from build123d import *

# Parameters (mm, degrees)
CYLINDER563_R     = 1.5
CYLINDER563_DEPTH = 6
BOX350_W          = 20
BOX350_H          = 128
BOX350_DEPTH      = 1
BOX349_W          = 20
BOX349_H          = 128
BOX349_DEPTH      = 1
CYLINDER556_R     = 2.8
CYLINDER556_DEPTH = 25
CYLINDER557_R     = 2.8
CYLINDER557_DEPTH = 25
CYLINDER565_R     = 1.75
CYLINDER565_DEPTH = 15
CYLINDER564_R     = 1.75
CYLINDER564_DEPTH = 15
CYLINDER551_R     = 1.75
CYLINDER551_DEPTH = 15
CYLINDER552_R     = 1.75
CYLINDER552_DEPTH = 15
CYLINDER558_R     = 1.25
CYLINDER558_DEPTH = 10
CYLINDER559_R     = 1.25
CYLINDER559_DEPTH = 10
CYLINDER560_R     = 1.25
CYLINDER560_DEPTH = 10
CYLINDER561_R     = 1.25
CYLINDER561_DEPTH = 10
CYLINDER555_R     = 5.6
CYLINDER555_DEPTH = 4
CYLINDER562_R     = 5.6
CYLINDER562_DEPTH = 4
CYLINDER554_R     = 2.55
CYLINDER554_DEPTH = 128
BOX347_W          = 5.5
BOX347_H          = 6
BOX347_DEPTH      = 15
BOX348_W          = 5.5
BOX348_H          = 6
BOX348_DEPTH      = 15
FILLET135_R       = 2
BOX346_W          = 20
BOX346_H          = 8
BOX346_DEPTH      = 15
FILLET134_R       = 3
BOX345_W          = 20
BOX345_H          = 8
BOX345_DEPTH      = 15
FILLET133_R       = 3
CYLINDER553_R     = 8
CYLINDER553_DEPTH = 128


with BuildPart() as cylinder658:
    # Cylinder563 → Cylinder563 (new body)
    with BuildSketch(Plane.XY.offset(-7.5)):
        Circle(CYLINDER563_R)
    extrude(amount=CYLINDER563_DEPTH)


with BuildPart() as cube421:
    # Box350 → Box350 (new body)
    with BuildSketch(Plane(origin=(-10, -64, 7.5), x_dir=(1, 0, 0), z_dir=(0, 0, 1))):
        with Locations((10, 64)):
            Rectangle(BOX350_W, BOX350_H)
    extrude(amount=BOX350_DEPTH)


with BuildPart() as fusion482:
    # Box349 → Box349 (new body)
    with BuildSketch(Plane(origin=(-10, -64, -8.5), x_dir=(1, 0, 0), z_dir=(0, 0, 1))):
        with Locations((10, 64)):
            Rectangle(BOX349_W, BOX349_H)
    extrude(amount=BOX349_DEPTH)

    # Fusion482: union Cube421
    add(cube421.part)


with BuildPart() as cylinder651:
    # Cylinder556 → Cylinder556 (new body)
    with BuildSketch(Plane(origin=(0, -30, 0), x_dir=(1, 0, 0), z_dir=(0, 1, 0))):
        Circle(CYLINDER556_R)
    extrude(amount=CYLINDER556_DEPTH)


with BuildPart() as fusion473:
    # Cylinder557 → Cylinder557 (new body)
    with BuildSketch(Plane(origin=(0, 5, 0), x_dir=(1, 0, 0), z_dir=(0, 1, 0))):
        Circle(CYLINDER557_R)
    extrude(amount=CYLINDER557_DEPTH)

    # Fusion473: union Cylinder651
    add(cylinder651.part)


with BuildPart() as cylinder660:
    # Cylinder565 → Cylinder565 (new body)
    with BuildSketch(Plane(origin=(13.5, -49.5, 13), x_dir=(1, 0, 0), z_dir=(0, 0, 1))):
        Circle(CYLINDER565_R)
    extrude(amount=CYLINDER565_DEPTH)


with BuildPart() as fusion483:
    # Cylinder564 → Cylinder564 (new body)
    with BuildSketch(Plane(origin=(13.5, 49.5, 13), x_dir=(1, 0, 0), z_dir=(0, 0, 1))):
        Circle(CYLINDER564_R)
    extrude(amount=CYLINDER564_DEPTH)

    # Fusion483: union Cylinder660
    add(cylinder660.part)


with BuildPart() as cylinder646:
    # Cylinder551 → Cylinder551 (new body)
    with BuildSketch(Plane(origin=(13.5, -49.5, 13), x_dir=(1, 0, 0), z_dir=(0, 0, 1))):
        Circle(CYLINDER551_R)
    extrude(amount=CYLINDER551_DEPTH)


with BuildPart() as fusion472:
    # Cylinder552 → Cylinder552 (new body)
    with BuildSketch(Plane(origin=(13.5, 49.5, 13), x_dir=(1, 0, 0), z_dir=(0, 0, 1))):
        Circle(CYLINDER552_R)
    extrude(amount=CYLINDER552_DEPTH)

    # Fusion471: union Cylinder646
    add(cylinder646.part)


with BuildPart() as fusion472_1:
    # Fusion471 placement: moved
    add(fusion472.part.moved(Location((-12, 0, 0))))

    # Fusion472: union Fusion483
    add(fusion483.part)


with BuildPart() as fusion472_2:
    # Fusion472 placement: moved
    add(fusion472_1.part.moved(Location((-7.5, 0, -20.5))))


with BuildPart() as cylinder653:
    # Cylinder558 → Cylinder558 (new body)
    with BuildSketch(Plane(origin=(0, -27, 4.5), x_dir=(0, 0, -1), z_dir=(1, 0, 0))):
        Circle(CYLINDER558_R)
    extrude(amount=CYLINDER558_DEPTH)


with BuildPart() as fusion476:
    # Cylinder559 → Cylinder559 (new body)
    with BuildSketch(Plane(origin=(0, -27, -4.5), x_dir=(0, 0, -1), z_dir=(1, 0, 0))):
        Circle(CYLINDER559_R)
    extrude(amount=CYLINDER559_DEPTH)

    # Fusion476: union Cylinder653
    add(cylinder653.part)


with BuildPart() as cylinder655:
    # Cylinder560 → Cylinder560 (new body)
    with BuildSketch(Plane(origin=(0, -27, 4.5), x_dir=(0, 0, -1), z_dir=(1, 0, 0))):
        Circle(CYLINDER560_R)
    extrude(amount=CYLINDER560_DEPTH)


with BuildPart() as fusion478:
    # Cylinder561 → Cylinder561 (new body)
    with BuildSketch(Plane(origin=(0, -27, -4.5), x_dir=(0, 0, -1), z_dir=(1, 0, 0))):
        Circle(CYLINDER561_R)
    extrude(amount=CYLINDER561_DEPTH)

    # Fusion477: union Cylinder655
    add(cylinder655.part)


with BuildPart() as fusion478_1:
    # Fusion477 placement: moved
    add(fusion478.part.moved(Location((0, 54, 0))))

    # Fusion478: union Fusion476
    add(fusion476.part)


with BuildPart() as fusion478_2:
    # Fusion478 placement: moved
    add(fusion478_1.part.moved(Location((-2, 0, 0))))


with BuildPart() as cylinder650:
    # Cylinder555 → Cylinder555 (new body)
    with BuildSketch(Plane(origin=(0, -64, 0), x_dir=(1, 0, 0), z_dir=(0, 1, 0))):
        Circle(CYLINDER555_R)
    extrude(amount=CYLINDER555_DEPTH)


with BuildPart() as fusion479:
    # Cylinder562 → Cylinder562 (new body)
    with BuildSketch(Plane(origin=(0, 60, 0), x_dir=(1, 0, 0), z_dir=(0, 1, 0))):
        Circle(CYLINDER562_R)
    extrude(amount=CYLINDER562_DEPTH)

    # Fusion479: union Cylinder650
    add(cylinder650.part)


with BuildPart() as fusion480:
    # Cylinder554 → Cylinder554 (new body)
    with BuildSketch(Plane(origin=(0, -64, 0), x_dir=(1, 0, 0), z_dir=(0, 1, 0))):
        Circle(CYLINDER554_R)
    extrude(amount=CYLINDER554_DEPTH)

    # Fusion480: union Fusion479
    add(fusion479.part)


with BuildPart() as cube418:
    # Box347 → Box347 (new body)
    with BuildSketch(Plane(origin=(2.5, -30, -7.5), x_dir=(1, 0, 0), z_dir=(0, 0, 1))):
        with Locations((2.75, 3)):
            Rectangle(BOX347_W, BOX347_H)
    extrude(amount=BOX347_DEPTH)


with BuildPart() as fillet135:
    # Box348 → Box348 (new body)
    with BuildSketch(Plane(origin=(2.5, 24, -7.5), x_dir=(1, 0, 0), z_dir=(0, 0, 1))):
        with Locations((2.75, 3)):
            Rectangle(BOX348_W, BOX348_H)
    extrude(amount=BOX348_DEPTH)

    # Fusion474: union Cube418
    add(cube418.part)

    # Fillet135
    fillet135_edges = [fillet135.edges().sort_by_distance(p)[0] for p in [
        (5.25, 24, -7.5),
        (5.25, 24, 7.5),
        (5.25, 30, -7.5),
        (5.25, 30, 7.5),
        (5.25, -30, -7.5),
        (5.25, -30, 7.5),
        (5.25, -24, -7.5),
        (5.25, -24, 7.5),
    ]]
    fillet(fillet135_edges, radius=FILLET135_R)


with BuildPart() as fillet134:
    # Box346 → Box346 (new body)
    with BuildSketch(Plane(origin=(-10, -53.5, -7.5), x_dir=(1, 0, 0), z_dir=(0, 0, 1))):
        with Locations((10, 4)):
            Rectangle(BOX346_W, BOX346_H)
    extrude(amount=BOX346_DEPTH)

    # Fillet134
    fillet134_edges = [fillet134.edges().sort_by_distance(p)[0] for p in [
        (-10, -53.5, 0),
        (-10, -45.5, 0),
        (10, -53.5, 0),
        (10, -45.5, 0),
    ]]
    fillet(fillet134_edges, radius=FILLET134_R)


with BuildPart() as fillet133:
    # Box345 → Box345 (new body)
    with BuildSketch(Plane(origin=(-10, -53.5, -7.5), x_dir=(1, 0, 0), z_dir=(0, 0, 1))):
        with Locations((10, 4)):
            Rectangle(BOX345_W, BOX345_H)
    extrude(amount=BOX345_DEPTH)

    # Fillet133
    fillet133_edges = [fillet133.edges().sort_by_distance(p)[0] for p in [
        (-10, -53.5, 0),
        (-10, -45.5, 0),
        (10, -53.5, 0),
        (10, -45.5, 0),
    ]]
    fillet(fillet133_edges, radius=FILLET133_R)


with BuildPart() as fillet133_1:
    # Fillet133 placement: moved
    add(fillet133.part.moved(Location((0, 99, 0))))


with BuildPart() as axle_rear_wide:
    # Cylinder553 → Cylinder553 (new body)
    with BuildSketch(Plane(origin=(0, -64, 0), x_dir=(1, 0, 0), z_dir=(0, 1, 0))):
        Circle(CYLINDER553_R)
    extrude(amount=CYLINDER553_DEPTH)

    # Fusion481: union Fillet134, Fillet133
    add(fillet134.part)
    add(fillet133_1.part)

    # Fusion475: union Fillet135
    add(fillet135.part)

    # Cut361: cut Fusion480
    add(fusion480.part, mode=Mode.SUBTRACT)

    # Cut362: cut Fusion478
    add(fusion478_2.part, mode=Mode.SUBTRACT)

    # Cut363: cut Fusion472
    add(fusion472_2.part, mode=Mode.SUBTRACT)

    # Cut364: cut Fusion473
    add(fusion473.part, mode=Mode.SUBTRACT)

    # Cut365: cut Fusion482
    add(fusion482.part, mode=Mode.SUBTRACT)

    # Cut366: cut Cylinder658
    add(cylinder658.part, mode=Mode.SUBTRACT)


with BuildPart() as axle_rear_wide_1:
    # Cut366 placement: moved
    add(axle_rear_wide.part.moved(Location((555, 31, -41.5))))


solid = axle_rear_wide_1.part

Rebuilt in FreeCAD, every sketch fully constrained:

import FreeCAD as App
import Part
import Sketcher

V = App.Vector


def edges_at(feature, points):
    """Names of the edges that pass closest to the given points."""
    edges = feature.Shape.Edges
    near = lambda p: min(range(len(edges)), key=lambda i: edges[i].distToShape(Part.Vertex(*p))[0])
    return sorted({f"Edge{near(p) + 1}" for p in points})

doc = App.newDocument("Part")
params = doc.addObject("Spreadsheet::Sheet", "Params")
for row, (alias, value) in enumerate([
    ("sketch1_diameter", "3 mm"),
    ("pad1_length", "6 mm"),
    ("sketch2_width", "20 mm"),
    ("sketch2_height", "128 mm"),
    ("pad2_length", "1 mm"),
    ("sketch3_width", "20 mm"),
    ("sketch3_height", "128 mm"),
    ("pad3_length", "1 mm"),
    ("sketch4_diameter", "5.6 mm"),
    ("pad4_length", "25 mm"),
    ("sketch5_diameter", "5.6 mm"),
    ("pad5_length", "25 mm"),
    ("sketch6_diameter", "3.5 mm"),
    ("pad6_length", "15 mm"),
    ("sketch7_diameter", "3.5 mm"),
    ("pad7_length", "15 mm"),
    ("sketch8_diameter", "3.5 mm"),
    ("pad8_length", "15 mm"),
    ("sketch9_diameter", "3.5 mm"),
    ("pad9_length", "15 mm"),
    ("sketch10_diameter", "2.5 mm"),
    ("pad10_length", "10 mm"),
    ("sketch11_diameter", "2.5 mm"),
    ("pad11_length", "10 mm"),
    ("sketch12_diameter", "2.5 mm"),
    ("pad12_length", "10 mm"),
    ("sketch13_diameter", "2.5 mm"),
    ("pad13_length", "10 mm"),
    ("sketch14_diameter", "11.2 mm"),
    ("pad14_length", "4 mm"),
    ("sketch15_diameter", "11.2 mm"),
    ("pad15_length", "4 mm"),
    ("sketch16_diameter", "5.1 mm"),
    ("pad16_length", "128 mm"),
    ("sketch17_height", "6 mm"),
    ("sketch17_width", "5.5 mm"),
    ("pad17_length", "15 mm"),
    ("sketch18_height", "6 mm"),
    ("sketch18_width", "5.5 mm"),
    ("pad18_length", "15 mm"),
    ("fillet_radius", "2 mm"),
    ("sketch19_width", "20 mm"),
    ("sketch19_height", "8 mm"),
    ("pad19_length", "15 mm"),
    ("fillet2_radius", "3 mm"),
    ("sketch20_width", "20 mm"),
    ("sketch20_height", "8 mm"),
    ("pad20_length", "15 mm"),
    ("fillet3_radius", "3 mm"),
    ("sketch21_diameter", "16 mm"),
    ("pad21_length", "128 mm"),
], start=1):
    params.set(f"A{row}", alias)
    params.set(f"B{row}", "=" + value)
    params.setAlias(f"B{row}", alias)

body = doc.addObject("PartDesign::Body", "Body")

# Sketch on XY plane
sketch1 = body.newObject("Sketcher::SketchObject", "Sketch")
sketch1.AttachmentSupport = (doc.getObject("XY_Plane"), [""])
sketch1.MapMode = "FlatFace"
sketch1.AttachmentOffset = App.Placement(V(0, 0, -7.5), App.Rotation())
sketch1.addGeometry(Part.Circle(V(0, 0, 0), V(0, 0, 1), 1.5), False)
sketch1.addConstraint(Sketcher.Constraint("Coincident", 0, 3, -1, 1))
sketch1.addConstraint(Sketcher.Constraint("Diameter", 0, 3.0))
sketch1.setExpression("Constraints[1]", "Params.sketch1_diameter")
pad1 = body.newObject("PartDesign::Pad", "Pad")
pad1.Profile = sketch1
pad1.setExpression("Length", "Params.pad1_length")
body2 = doc.addObject("PartDesign::Body", "Body001")

# Sketch on XY plane
sketch2 = body2.newObject("Sketcher::SketchObject", "Sketch001")
sketch2.AttachmentSupport = (doc.getObject("XY_Plane001"), [""])
sketch2.MapMode = "FlatFace"
sketch2.AttachmentOffset = App.Placement(V(0, 0, 7.5), App.Rotation())
sketch2.addGeometry(Part.LineSegment(V(-10, 64, 0), V(-10, -64, 0)), False)
sketch2.addGeometry(Part.LineSegment(V(-10, -64, 0), V(10, -64, 0)), False)
sketch2.addGeometry(Part.LineSegment(V(10, -64, 0), V(10, 64, 0)), False)
sketch2.addGeometry(Part.LineSegment(V(10, 64, 0), V(-10, 64, 0)), False)
sketch2.addConstraint(Sketcher.Constraint("Coincident", 0, 2, 1, 1))
sketch2.addConstraint(Sketcher.Constraint("Coincident", 1, 2, 2, 1))
sketch2.addConstraint(Sketcher.Constraint("Coincident", 2, 2, 3, 1))
sketch2.addConstraint(Sketcher.Constraint("Coincident", 3, 2, 0, 1))
sketch2.addConstraint(Sketcher.Constraint("Vertical", 0))
sketch2.addConstraint(Sketcher.Constraint("Horizontal", 1))
sketch2.addConstraint(Sketcher.Constraint("Vertical", 2))
sketch2.addConstraint(Sketcher.Constraint("Horizontal", 3))
sketch2.addConstraint(Sketcher.Constraint("Symmetric", 0, 2, 2, 2, -1, 1))
sketch2.addConstraint(Sketcher.Constraint("DistanceX", 1, 1, 1, 2, 20.0))
sketch2.addConstraint(Sketcher.Constraint("DistanceY", 0, 2, 0, 1, 128.0))
sketch2.setExpression("Constraints[9]", "Params.sketch2_width")
sketch2.setExpression("Constraints[10]", "Params.sketch2_height")
pad2 = body2.newObject("PartDesign::Pad", "Pad001")
pad2.Profile = sketch2
pad2.setExpression("Length", "Params.pad2_length")
body3 = doc.addObject("PartDesign::Body", "Body002")
body3.AllowCompound = True

# Sketch on XY plane
sketch3 = body3.newObject("Sketcher::SketchObject", "Sketch002")
sketch3.AttachmentSupport = (doc.getObject("XY_Plane002"), [""])
sketch3.MapMode = "FlatFace"
sketch3.AttachmentOffset = App.Placement(V(0, 0, -8.5), App.Rotation())
sketch3.addGeometry(Part.LineSegment(V(-10, 64, 0), V(-10, -64, 0)), False)
sketch3.addGeometry(Part.LineSegment(V(-10, -64, 0), V(10, -64, 0)), False)
sketch3.addGeometry(Part.LineSegment(V(10, -64, 0), V(10, 64, 0)), False)
sketch3.addGeometry(Part.LineSegment(V(10, 64, 0), V(-10, 64, 0)), False)
sketch3.addConstraint(Sketcher.Constraint("Coincident", 0, 2, 1, 1))
sketch3.addConstraint(Sketcher.Constraint("Coincident", 1, 2, 2, 1))
sketch3.addConstraint(Sketcher.Constraint("Coincident", 2, 2, 3, 1))
sketch3.addConstraint(Sketcher.Constraint("Coincident", 3, 2, 0, 1))
sketch3.addConstraint(Sketcher.Constraint("Vertical", 0))
sketch3.addConstraint(Sketcher.Constraint("Horizontal", 1))
sketch3.addConstraint(Sketcher.Constraint("Vertical", 2))
sketch3.addConstraint(Sketcher.Constraint("Horizontal", 3))
sketch3.addConstraint(Sketcher.Constraint("Symmetric", 0, 2, 2, 2, -1, 1))
sketch3.addConstraint(Sketcher.Constraint("DistanceX", 1, 1, 1, 2, 20.0))
sketch3.addConstraint(Sketcher.Constraint("DistanceY", 0, 2, 0, 1, 128.0))
sketch3.setExpression("Constraints[9]", "Params.sketch3_width")
sketch3.setExpression("Constraints[10]", "Params.sketch3_height")
pad3 = body3.newObject("PartDesign::Pad", "Pad002")
pad3.Profile = sketch3
pad3.setExpression("Length", "Params.pad3_length")
doc.recompute()

boolean = body3.newObject("PartDesign::Boolean", "Boolean")
boolean.Type = "Fuse"
boolean.addObjects([body2])
body4 = doc.addObject("PartDesign::Body", "Body003")

# Sketch on XZ plane
sketch4 = body4.newObject("Sketcher::SketchObject", "Sketch003")
sketch4.AttachmentSupport = (doc.getObject("XZ_Plane003"), [""])
sketch4.MapMode = "FlatFace"
sketch4.AttachmentOffset = App.Placement(V(0, 0, 30), App.Rotation())
sketch4.addGeometry(Part.Circle(V(0, 0, 0), V(0, 0, 1), 2.8), False)
sketch4.addConstraint(Sketcher.Constraint("Coincident", 0, 3, -1, 1))
sketch4.addConstraint(Sketcher.Constraint("Diameter", 0, 5.6))
sketch4.setExpression("Constraints[1]", "Params.sketch4_diameter")
pad4 = body4.newObject("PartDesign::Pad", "Pad003")
pad4.Profile = sketch4
pad4.setExpression("Length", "Params.pad4_length")
pad4.Reversed = True
body5 = doc.addObject("PartDesign::Body", "Body004")
body5.AllowCompound = True

# Sketch on XZ plane
sketch5 = body5.newObject("Sketcher::SketchObject", "Sketch004")
sketch5.AttachmentSupport = (doc.getObject("XZ_Plane004"), [""])
sketch5.MapMode = "FlatFace"
sketch5.AttachmentOffset = App.Placement(V(0, 0, -5), App.Rotation())
sketch5.addGeometry(Part.Circle(V(0, 0, 0), V(0, 0, 1), 2.8), False)
sketch5.addConstraint(Sketcher.Constraint("Coincident", 0, 3, -1, 1))
sketch5.addConstraint(Sketcher.Constraint("Diameter", 0, 5.6))
sketch5.setExpression("Constraints[1]", "Params.sketch5_diameter")
pad5 = body5.newObject("PartDesign::Pad", "Pad004")
pad5.Profile = sketch5
pad5.setExpression("Length", "Params.pad5_length")
pad5.Reversed = True
doc.recompute()

boolean2 = body5.newObject("PartDesign::Boolean", "Boolean001")
boolean2.Type = "Fuse"
boolean2.addObjects([body4])
body6 = doc.addObject("PartDesign::Body", "Body005")

# Sketch on XY plane
sketch6 = body6.newObject("Sketcher::SketchObject", "Sketch005")
sketch6.AttachmentSupport = (doc.getObject("XY_Plane005"), [""])
sketch6.MapMode = "FlatFace"
sketch6.AttachmentOffset = App.Placement(V(0, 0, 13), App.Rotation())
sketch6.addGeometry(Part.Circle(V(13.5, -49.5, 0), V(0, 0, 1), 1.75), False)
sketch6.addConstraint(Sketcher.Constraint("Diameter", 0, 3.5))
sketch6.addConstraint(Sketcher.Constraint("DistanceX", -1, 1, 0, 3, 13.5))
sketch6.addConstraint(Sketcher.Constraint("DistanceY", 0, 3, -1, 1, 49.5))
sketch6.setExpression("Constraints[0]", "Params.sketch6_diameter")
pad6 = body6.newObject("PartDesign::Pad", "Pad005")
pad6.Profile = sketch6
pad6.setExpression("Length", "Params.pad6_length")
body7 = doc.addObject("PartDesign::Body", "Body006")
body7.AllowCompound = True

# Sketch on XY plane
sketch7 = body7.newObject("Sketcher::SketchObject", "Sketch006")
sketch7.AttachmentSupport = (doc.getObject("XY_Plane006"), [""])
sketch7.MapMode = "FlatFace"
sketch7.AttachmentOffset = App.Placement(V(0, 0, 13), App.Rotation())
sketch7.addGeometry(Part.Circle(V(13.5, 49.5, 0), V(0, 0, 1), 1.75), False)
sketch7.addConstraint(Sketcher.Constraint("Diameter", 0, 3.5))
sketch7.addConstraint(Sketcher.Constraint("DistanceX", -1, 1, 0, 3, 13.5))
sketch7.addConstraint(Sketcher.Constraint("DistanceY", -1, 1, 0, 3, 49.5))
sketch7.setExpression("Constraints[0]", "Params.sketch7_diameter")
pad7 = body7.newObject("PartDesign::Pad", "Pad006")
pad7.Profile = sketch7
pad7.setExpression("Length", "Params.pad7_length")
doc.recompute()

boolean3 = body7.newObject("PartDesign::Boolean", "Boolean002")
boolean3.Type = "Fuse"
boolean3.addObjects([body6])
body8 = doc.addObject("PartDesign::Body", "Body007")

# Sketch on XY plane
sketch8 = body8.newObject("Sketcher::SketchObject", "Sketch007")
sketch8.AttachmentSupport = (doc.getObject("XY_Plane007"), [""])
sketch8.MapMode = "FlatFace"
sketch8.AttachmentOffset = App.Placement(V(0, 0, 13), App.Rotation())
sketch8.addGeometry(Part.Circle(V(13.5, -49.5, 0), V(0, 0, 1), 1.75), False)
sketch8.addConstraint(Sketcher.Constraint("Diameter", 0, 3.5))
sketch8.addConstraint(Sketcher.Constraint("DistanceX", -1, 1, 0, 3, 13.5))
sketch8.addConstraint(Sketcher.Constraint("DistanceY", 0, 3, -1, 1, 49.5))
sketch8.setExpression("Constraints[0]", "Params.sketch8_diameter")
pad8 = body8.newObject("PartDesign::Pad", "Pad007")
pad8.Profile = sketch8
pad8.setExpression("Length", "Params.pad8_length")
body9 = doc.addObject("PartDesign::Body", "Body008")
body9.AllowCompound = True

# Sketch on XY plane
sketch9 = body9.newObject("Sketcher::SketchObject", "Sketch008")
sketch9.AttachmentSupport = (doc.getObject("XY_Plane008"), [""])
sketch9.MapMode = "FlatFace"
sketch9.AttachmentOffset = App.Placement(V(0, 0, 13), App.Rotation())
sketch9.addGeometry(Part.Circle(V(13.5, 49.5, 0), V(0, 0, 1), 1.75), False)
sketch9.addConstraint(Sketcher.Constraint("Diameter", 0, 3.5))
sketch9.addConstraint(Sketcher.Constraint("DistanceX", -1, 1, 0, 3, 13.5))
sketch9.addConstraint(Sketcher.Constraint("DistanceY", -1, 1, 0, 3, 49.5))
sketch9.setExpression("Constraints[0]", "Params.sketch9_diameter")
pad9 = body9.newObject("PartDesign::Pad", "Pad008")
pad9.Profile = sketch9
pad9.setExpression("Length", "Params.pad9_length")
doc.recompute()

boolean4 = body9.newObject("PartDesign::Boolean", "Boolean003")
boolean4.Type = "Fuse"
boolean4.addObjects([body8])
body10 = doc.addObject("PartDesign::Body", "Body009")
body10.AllowCompound = True
doc.recompute()

body9.Placement = App.Placement(V(-12, 0, 0), App.Rotation(V(0, 0, 1), 0))
boolean5 = body10.newObject("PartDesign::Boolean", "Boolean004")
boolean5.Type = "Fuse"
boolean5.addObjects([body9])
doc.recompute()

boolean6 = body10.newObject("PartDesign::Boolean", "Boolean005")
boolean6.Type = "Fuse"
boolean6.addObjects([body7])
body11 = doc.addObject("PartDesign::Body", "Body010")
body11.AllowCompound = True
doc.recompute()

body10.Placement = App.Placement(V(-7.5, 0, -20.5), App.Rotation(V(0, 0, 1), 0))
boolean7 = body11.newObject("PartDesign::Boolean", "Boolean006")
boolean7.Type = "Fuse"
boolean7.addObjects([body10])
body12 = doc.addObject("PartDesign::Body", "Body011")

# Sketch on YZ plane
sketch10 = body12.newObject("Sketcher::SketchObject", "Sketch009")
sketch10.AttachmentSupport = (doc.getObject("YZ_Plane011"), [""])
sketch10.MapMode = "FlatFace"
sketch10.addGeometry(Part.Circle(V(-27, 4.5, 0), V(0, 0, 1), 1.25), False)
sketch10.addConstraint(Sketcher.Constraint("Diameter", 0, 2.5))
sketch10.addConstraint(Sketcher.Constraint("DistanceX", 0, 3, -1, 1, 27.0))
sketch10.addConstraint(Sketcher.Constraint("DistanceY", -1, 1, 0, 3, 4.5))
sketch10.setExpression("Constraints[0]", "Params.sketch10_diameter")
pad10 = body12.newObject("PartDesign::Pad", "Pad009")
pad10.Profile = sketch10
pad10.setExpression("Length", "Params.pad10_length")
body13 = doc.addObject("PartDesign::Body", "Body012")
body13.AllowCompound = True

# Sketch on YZ plane
sketch11 = body13.newObject("Sketcher::SketchObject", "Sketch010")
sketch11.AttachmentSupport = (doc.getObject("YZ_Plane012"), [""])
sketch11.MapMode = "FlatFace"
sketch11.addGeometry(Part.Circle(V(-27, -4.5, 0), V(0, 0, 1), 1.25), False)
sketch11.addConstraint(Sketcher.Constraint("Diameter", 0, 2.5))
sketch11.addConstraint(Sketcher.Constraint("DistanceX", 0, 3, -1, 1, 27.0))
sketch11.addConstraint(Sketcher.Constraint("DistanceY", 0, 3, -1, 1, 4.5))
sketch11.setExpression("Constraints[0]", "Params.sketch11_diameter")
pad11 = body13.newObject("PartDesign::Pad", "Pad010")
pad11.Profile = sketch11
pad11.setExpression("Length", "Params.pad11_length")
doc.recompute()

boolean8 = body13.newObject("PartDesign::Boolean", "Boolean007")
boolean8.Type = "Fuse"
boolean8.addObjects([body12])
body14 = doc.addObject("PartDesign::Body", "Body013")

# Sketch on YZ plane
sketch12 = body14.newObject("Sketcher::SketchObject", "Sketch011")
sketch12.AttachmentSupport = (doc.getObject("YZ_Plane013"), [""])
sketch12.MapMode = "FlatFace"
sketch12.addGeometry(Part.Circle(V(-27, 4.5, 0), V(0, 0, 1), 1.25), False)
sketch12.addConstraint(Sketcher.Constraint("Diameter", 0, 2.5))
sketch12.addConstraint(Sketcher.Constraint("DistanceX", 0, 3, -1, 1, 27.0))
sketch12.addConstraint(Sketcher.Constraint("DistanceY", -1, 1, 0, 3, 4.5))
sketch12.setExpression("Constraints[0]", "Params.sketch12_diameter")
pad12 = body14.newObject("PartDesign::Pad", "Pad011")
pad12.Profile = sketch12
pad12.setExpression("Length", "Params.pad12_length")
body15 = doc.addObject("PartDesign::Body", "Body014")
body15.AllowCompound = True

# Sketch on YZ plane
sketch13 = body15.newObject("Sketcher::SketchObject", "Sketch012")
sketch13.AttachmentSupport = (doc.getObject("YZ_Plane014"), [""])
sketch13.MapMode = "FlatFace"
sketch13.addGeometry(Part.Circle(V(-27, -4.5, 0), V(0, 0, 1), 1.25), False)
sketch13.addConstraint(Sketcher.Constraint("Diameter", 0, 2.5))
sketch13.addConstraint(Sketcher.Constraint("DistanceX", 0, 3, -1, 1, 27.0))
sketch13.addConstraint(Sketcher.Constraint("DistanceY", 0, 3, -1, 1, 4.5))
sketch13.setExpression("Constraints[0]", "Params.sketch13_diameter")
pad13 = body15.newObject("PartDesign::Pad", "Pad012")
pad13.Profile = sketch13
pad13.setExpression("Length", "Params.pad13_length")
doc.recompute()

boolean9 = body15.newObject("PartDesign::Boolean", "Boolean008")
boolean9.Type = "Fuse"
boolean9.addObjects([body14])
body16 = doc.addObject("PartDesign::Body", "Body015")
body16.AllowCompound = True
doc.recompute()

body15.Placement = App.Placement(V(0, 54, 0), App.Rotation(V(0, 0, 1), 0))
boolean10 = body16.newObject("PartDesign::Boolean", "Boolean009")
boolean10.Type = "Fuse"
boolean10.addObjects([body15])
doc.recompute()

boolean11 = body16.newObject("PartDesign::Boolean", "Boolean010")
boolean11.Type = "Fuse"
boolean11.addObjects([body13])
body17 = doc.addObject("PartDesign::Body", "Body016")
body17.AllowCompound = True
doc.recompute()

body16.Placement = App.Placement(V(-2, 0, 0), App.Rotation(V(0, 0, 1), 0))
boolean12 = body17.newObject("PartDesign::Boolean", "Boolean011")
boolean12.Type = "Fuse"
boolean12.addObjects([body16])
body18 = doc.addObject("PartDesign::Body", "Body017")

# Sketch on XZ plane
sketch14 = body18.newObject("Sketcher::SketchObject", "Sketch013")
sketch14.AttachmentSupport = (doc.getObject("XZ_Plane017"), [""])
sketch14.MapMode = "FlatFace"
sketch14.AttachmentOffset = App.Placement(V(0, 0, 64), App.Rotation())
sketch14.addGeometry(Part.Circle(V(0, 0, 0), V(0, 0, 1), 5.6), False)
sketch14.addConstraint(Sketcher.Constraint("Coincident", 0, 3, -1, 1))
sketch14.addConstraint(Sketcher.Constraint("Diameter", 0, 11.2))
sketch14.setExpression("Constraints[1]", "Params.sketch14_diameter")
pad14 = body18.newObject("PartDesign::Pad", "Pad013")
pad14.Profile = sketch14
pad14.setExpression("Length", "Params.pad14_length")
pad14.Reversed = True
body19 = doc.addObject("PartDesign::Body", "Body018")
body19.AllowCompound = True

# Sketch on XZ plane
sketch15 = body19.newObject("Sketcher::SketchObject", "Sketch014")
sketch15.AttachmentSupport = (doc.getObject("XZ_Plane018"), [""])
sketch15.MapMode = "FlatFace"
sketch15.AttachmentOffset = App.Placement(V(0, 0, -60), App.Rotation())
sketch15.addGeometry(Part.Circle(V(0, 0, 0), V(0, 0, 1), 5.6), False)
sketch15.addConstraint(Sketcher.Constraint("Coincident", 0, 3, -1, 1))
sketch15.addConstraint(Sketcher.Constraint("Diameter", 0, 11.2))
sketch15.setExpression("Constraints[1]", "Params.sketch15_diameter")
pad15 = body19.newObject("PartDesign::Pad", "Pad014")
pad15.Profile = sketch15
pad15.setExpression("Length", "Params.pad15_length")
pad15.Reversed = True
doc.recompute()

boolean13 = body19.newObject("PartDesign::Boolean", "Boolean012")
boolean13.Type = "Fuse"
boolean13.addObjects([body18])
body20 = doc.addObject("PartDesign::Body", "Body019")

# Sketch on XZ plane
sketch16 = body20.newObject("Sketcher::SketchObject", "Sketch015")
sketch16.AttachmentSupport = (doc.getObject("XZ_Plane019"), [""])
sketch16.MapMode = "FlatFace"
sketch16.AttachmentOffset = App.Placement(V(0, 0, 64), App.Rotation())
sketch16.addGeometry(Part.Circle(V(0, 0, 0), V(0, 0, 1), 2.55), False)
sketch16.addConstraint(Sketcher.Constraint("Coincident", 0, 3, -1, 1))
sketch16.addConstraint(Sketcher.Constraint("Diameter", 0, 5.1))
sketch16.setExpression("Constraints[1]", "Params.sketch16_diameter")
pad16 = body20.newObject("PartDesign::Pad", "Pad015")
pad16.Profile = sketch16
pad16.setExpression("Length", "Params.pad16_length")
pad16.Reversed = True
doc.recompute()

boolean14 = body20.newObject("PartDesign::Boolean", "Boolean013")
boolean14.Type = "Fuse"
boolean14.addObjects([body19])
body21 = doc.addObject("PartDesign::Body", "Body020")

# Sketch on XY plane
sketch17 = body21.newObject("Sketcher::SketchObject", "Sketch016")
sketch17.AttachmentSupport = (doc.getObject("XY_Plane020"), [""])
sketch17.MapMode = "FlatFace"
sketch17.AttachmentOffset = App.Placement(V(0, 0, -7.5), App.Rotation())
sketch17.addGeometry(Part.LineSegment(V(2.5, -24, 0), V(2.5, -30, 0)), False)
sketch17.addGeometry(Part.LineSegment(V(2.5, -30, 0), V(8, -30, 0)), False)
sketch17.addGeometry(Part.LineSegment(V(8, -30, 0), V(8, -24, 0)), False)
sketch17.addGeometry(Part.LineSegment(V(8, -24, 0), V(2.5, -24, 0)), False)
sketch17.addConstraint(Sketcher.Constraint("Coincident", 0, 2, 1, 1))
sketch17.addConstraint(Sketcher.Constraint("Coincident", 1, 2, 2, 1))
sketch17.addConstraint(Sketcher.Constraint("Coincident", 2, 2, 3, 1))
sketch17.addConstraint(Sketcher.Constraint("Coincident", 3, 2, 0, 1))
sketch17.addConstraint(Sketcher.Constraint("Vertical", 0))
sketch17.addConstraint(Sketcher.Constraint("Horizontal", 1))
sketch17.addConstraint(Sketcher.Constraint("Vertical", 2))
sketch17.addConstraint(Sketcher.Constraint("Horizontal", 3))
sketch17.addConstraint(Sketcher.Constraint("DistanceY", 0, 2, 0, 1, 6.0))
sketch17.addConstraint(Sketcher.Constraint("DistanceX", 1, 1, 1, 2, 5.5))
sketch17.addConstraint(Sketcher.Constraint("DistanceY", 0, 2, -1, 1, 30.0))
sketch17.addConstraint(Sketcher.Constraint("DistanceX", -1, 1, 1, 2, 8.0))
sketch17.setExpression("Constraints[8]", "Params.sketch17_height")
sketch17.setExpression("Constraints[9]", "Params.sketch17_width")
pad17 = body21.newObject("PartDesign::Pad", "Pad016")
pad17.Profile = sketch17
pad17.setExpression("Length", "Params.pad17_length")
body22 = doc.addObject("PartDesign::Body", "Body021")
body22.AllowCompound = True

# Sketch on XY plane
sketch18 = body22.newObject("Sketcher::SketchObject", "Sketch017")
sketch18.AttachmentSupport = (doc.getObject("XY_Plane021"), [""])
sketch18.MapMode = "FlatFace"
sketch18.AttachmentOffset = App.Placement(V(0, 0, -7.5), App.Rotation())
sketch18.addGeometry(Part.LineSegment(V(2.5, 30, 0), V(2.5, 24, 0)), False)
sketch18.addGeometry(Part.LineSegment(V(2.5, 24, 0), V(8, 24, 0)), False)
sketch18.addGeometry(Part.LineSegment(V(8, 24, 0), V(8, 30, 0)), False)
sketch18.addGeometry(Part.LineSegment(V(8, 30, 0), V(2.5, 30, 0)), False)
sketch18.addConstraint(Sketcher.Constraint("Coincident", 0, 2, 1, 1))
sketch18.addConstraint(Sketcher.Constraint("Coincident", 1, 2, 2, 1))
sketch18.addConstraint(Sketcher.Constraint("Coincident", 2, 2, 3, 1))
sketch18.addConstraint(Sketcher.Constraint("Coincident", 3, 2, 0, 1))
sketch18.addConstraint(Sketcher.Constraint("Vertical", 0))
sketch18.addConstraint(Sketcher.Constraint("Horizontal", 1))
sketch18.addConstraint(Sketcher.Constraint("Vertical", 2))
sketch18.addConstraint(Sketcher.Constraint("Horizontal", 3))
sketch18.addConstraint(Sketcher.Constraint("DistanceY", 0, 2, 0, 1, 6.0))
sketch18.addConstraint(Sketcher.Constraint("DistanceX", 1, 1, 1, 2, 5.5))
sketch18.addConstraint(Sketcher.Constraint("DistanceY", -1, 1, 0, 2, 24.0))
sketch18.addConstraint(Sketcher.Constraint("DistanceX", -1, 1, 1, 2, 8.0))
sketch18.setExpression("Constraints[8]", "Params.sketch18_height")
sketch18.setExpression("Constraints[9]", "Params.sketch18_width")
pad18 = body22.newObject("PartDesign::Pad", "Pad017")
pad18.Profile = sketch18
pad18.setExpression("Length", "Params.pad18_length")
doc.recompute()

boolean15 = body22.newObject("PartDesign::Boolean", "Boolean014")
boolean15.Type = "Fuse"
boolean15.addObjects([body21])
doc.recompute()

fillet = body22.newObject("PartDesign::Fillet", "Fillet")
fillet.Base = (boolean15, edges_at(boolean15, [
    (5.25, 24, -7.5),
    (5.25, 24, 7.5),
    (5.25, 30, -7.5),
    (5.25, 30, 7.5),
    (5.25, -30, -7.5),
    (5.25, -30, 7.5),
    (5.25, -24, -7.5),
    (5.25, -24, 7.5),
]))
fillet.setExpression("Radius", "Params.fillet_radius")
body23 = doc.addObject("PartDesign::Body", "Body022")

# Sketch on XY plane
sketch19 = body23.newObject("Sketcher::SketchObject", "Sketch018")
sketch19.AttachmentSupport = (doc.getObject("XY_Plane022"), [""])
sketch19.MapMode = "FlatFace"
sketch19.AttachmentOffset = App.Placement(V(0, 0, -7.5), App.Rotation())
sketch19.addGeometry(Part.LineSegment(V(-10, -45.5, 0), V(-10, -53.5, 0)), False)
sketch19.addGeometry(Part.LineSegment(V(-10, -53.5, 0), V(10, -53.5, 0)), False)
sketch19.addGeometry(Part.LineSegment(V(10, -53.5, 0), V(10, -45.5, 0)), False)
sketch19.addGeometry(Part.LineSegment(V(10, -45.5, 0), V(-10, -45.5, 0)), False)
sketch19.addConstraint(Sketcher.Constraint("Coincident", 0, 2, 1, 1))
sketch19.addConstraint(Sketcher.Constraint("Coincident", 1, 2, 2, 1))
sketch19.addConstraint(Sketcher.Constraint("Coincident", 2, 2, 3, 1))
sketch19.addConstraint(Sketcher.Constraint("Coincident", 3, 2, 0, 1))
sketch19.addConstraint(Sketcher.Constraint("Vertical", 0))
sketch19.addConstraint(Sketcher.Constraint("Horizontal", 1))
sketch19.addConstraint(Sketcher.Constraint("Vertical", 2))
sketch19.addConstraint(Sketcher.Constraint("Horizontal", 3))
sketch19.addConstraint(Sketcher.Constraint("DistanceX", 1, 1, 1, 2, 20.0))
sketch19.addConstraint(Sketcher.Constraint("DistanceY", 0, 2, 0, 1, 8.0))
sketch19.addConstraint(Sketcher.Constraint("DistanceX", 0, 2, -1, 1, 10.0))
sketch19.addConstraint(Sketcher.Constraint("DistanceY", 0, 2, -1, 1, 53.5))
sketch19.setExpression("Constraints[8]", "Params.sketch19_width")
sketch19.setExpression("Constraints[9]", "Params.sketch19_height")
pad19 = body23.newObject("PartDesign::Pad", "Pad018")
pad19.Profile = sketch19
pad19.setExpression("Length", "Params.pad19_length")
doc.recompute()

fillet2 = body23.newObject("PartDesign::Fillet", "Fillet001")
fillet2.Base = (pad19, edges_at(pad19, [
    (-10, -53.5, 0),
    (-10, -45.5, 0),
    (10, -53.5, 0),
    (10, -45.5, 0),
]))
fillet2.setExpression("Radius", "Params.fillet2_radius")
body24 = doc.addObject("PartDesign::Body", "Body023")

# Sketch on XY plane
sketch20 = body24.newObject("Sketcher::SketchObject", "Sketch019")
sketch20.AttachmentSupport = (doc.getObject("XY_Plane023"), [""])
sketch20.MapMode = "FlatFace"
sketch20.AttachmentOffset = App.Placement(V(0, 0, -7.5), App.Rotation())
sketch20.addGeometry(Part.LineSegment(V(-10, -45.5, 0), V(-10, -53.5, 0)), False)
sketch20.addGeometry(Part.LineSegment(V(-10, -53.5, 0), V(10, -53.5, 0)), False)
sketch20.addGeometry(Part.LineSegment(V(10, -53.5, 0), V(10, -45.5, 0)), False)
sketch20.addGeometry(Part.LineSegment(V(10, -45.5, 0), V(-10, -45.5, 0)), False)
sketch20.addConstraint(Sketcher.Constraint("Coincident", 0, 2, 1, 1))
sketch20.addConstraint(Sketcher.Constraint("Coincident", 1, 2, 2, 1))
sketch20.addConstraint(Sketcher.Constraint("Coincident", 2, 2, 3, 1))
sketch20.addConstraint(Sketcher.Constraint("Coincident", 3, 2, 0, 1))
sketch20.addConstraint(Sketcher.Constraint("Vertical", 0))
sketch20.addConstraint(Sketcher.Constraint("Horizontal", 1))
sketch20.addConstraint(Sketcher.Constraint("Vertical", 2))
sketch20.addConstraint(Sketcher.Constraint("Horizontal", 3))
sketch20.addConstraint(Sketcher.Constraint("DistanceX", 1, 1, 1, 2, 20.0))
sketch20.addConstraint(Sketcher.Constraint("DistanceY", 0, 2, 0, 1, 8.0))
sketch20.addConstraint(Sketcher.Constraint("DistanceX", 0, 2, -1, 1, 10.0))
sketch20.addConstraint(Sketcher.Constraint("DistanceY", 0, 2, -1, 1, 53.5))
sketch20.setExpression("Constraints[8]", "Params.sketch20_width")
sketch20.setExpression("Constraints[9]", "Params.sketch20_height")
pad20 = body24.newObject("PartDesign::Pad", "Pad019")
pad20.Profile = sketch20
pad20.setExpression("Length", "Params.pad20_length")
doc.recompute()

fillet3 = body24.newObject("PartDesign::Fillet", "Fillet002")
fillet3.Base = (pad20, edges_at(pad20, [
    (-10, -53.5, 0),
    (-10, -45.5, 0),
    (10, -53.5, 0),
    (10, -45.5, 0),
]))
fillet3.setExpression("Radius", "Params.fillet3_radius")
body25 = doc.addObject("PartDesign::Body", "Body024")
doc.recompute()

body24.Placement = App.Placement(V(0, 99, 0), App.Rotation(V(0, 0, 1), 0))
boolean16 = body25.newObject("PartDesign::Boolean", "Boolean015")
boolean16.Type = "Fuse"
boolean16.addObjects([body24])
body26 = doc.addObject("PartDesign::Body", "Body025")

# Sketch on XZ plane
sketch21 = body26.newObject("Sketcher::SketchObject", "Sketch020")
sketch21.AttachmentSupport = (doc.getObject("XZ_Plane025"), [""])
sketch21.MapMode = "FlatFace"
sketch21.AttachmentOffset = App.Placement(V(0, 0, 64), App.Rotation())
sketch21.addGeometry(Part.Circle(V(0, 0, 0), V(0, 0, 1), 8), False)
sketch21.addConstraint(Sketcher.Constraint("Coincident", 0, 3, -1, 1))
sketch21.addConstraint(Sketcher.Constraint("Diameter", 0, 16.0))
sketch21.setExpression("Constraints[1]", "Params.sketch21_diameter")
pad21 = body26.newObject("PartDesign::Pad", "Pad020")
pad21.Profile = sketch21
pad21.setExpression("Length", "Params.pad21_length")
pad21.Reversed = True
doc.recompute()

boolean17 = body26.newObject("PartDesign::Boolean", "Boolean016")
boolean17.Type = "Fuse"
boolean17.addObjects([body23])
doc.recompute()

boolean18 = body26.newObject("PartDesign::Boolean", "Boolean017")
boolean18.Type = "Fuse"
boolean18.addObjects([body25])
doc.recompute()

boolean19 = body26.newObject("PartDesign::Boolean", "Boolean018")
boolean19.Type = "Fuse"
boolean19.addObjects([body22])
doc.recompute()

boolean20 = body26.newObject("PartDesign::Boolean", "Boolean019")
boolean20.Type = "Cut"
boolean20.addObjects([body20])
doc.recompute()

boolean21 = body26.newObject("PartDesign::Boolean", "Boolean020")
boolean21.Type = "Cut"
boolean21.addObjects([body17])
doc.recompute()

boolean22 = body26.newObject("PartDesign::Boolean", "Boolean021")
boolean22.Type = "Cut"
boolean22.addObjects([body11])
doc.recompute()

boolean23 = body26.newObject("PartDesign::Boolean", "Boolean022")
boolean23.Type = "Cut"
boolean23.addObjects([body5])
doc.recompute()

boolean24 = body26.newObject("PartDesign::Boolean", "Boolean023")
boolean24.Type = "Cut"
boolean24.addObjects([body3])
doc.recompute()

boolean25 = body26.newObject("PartDesign::Boolean", "Boolean024")
boolean25.Type = "Cut"
boolean25.addObjects([body])
body27 = doc.addObject("PartDesign::Body", "Body026")
doc.recompute()

body26.Placement = App.Placement(V(555, 31, -41.5), App.Rotation(V(0, 0, 1), 0))
boolean26 = body27.newObject("PartDesign::Boolean", "Boolean025")
boolean26.Type = "Fuse"
boolean26.addObjects([body26])

doc.recompute()
